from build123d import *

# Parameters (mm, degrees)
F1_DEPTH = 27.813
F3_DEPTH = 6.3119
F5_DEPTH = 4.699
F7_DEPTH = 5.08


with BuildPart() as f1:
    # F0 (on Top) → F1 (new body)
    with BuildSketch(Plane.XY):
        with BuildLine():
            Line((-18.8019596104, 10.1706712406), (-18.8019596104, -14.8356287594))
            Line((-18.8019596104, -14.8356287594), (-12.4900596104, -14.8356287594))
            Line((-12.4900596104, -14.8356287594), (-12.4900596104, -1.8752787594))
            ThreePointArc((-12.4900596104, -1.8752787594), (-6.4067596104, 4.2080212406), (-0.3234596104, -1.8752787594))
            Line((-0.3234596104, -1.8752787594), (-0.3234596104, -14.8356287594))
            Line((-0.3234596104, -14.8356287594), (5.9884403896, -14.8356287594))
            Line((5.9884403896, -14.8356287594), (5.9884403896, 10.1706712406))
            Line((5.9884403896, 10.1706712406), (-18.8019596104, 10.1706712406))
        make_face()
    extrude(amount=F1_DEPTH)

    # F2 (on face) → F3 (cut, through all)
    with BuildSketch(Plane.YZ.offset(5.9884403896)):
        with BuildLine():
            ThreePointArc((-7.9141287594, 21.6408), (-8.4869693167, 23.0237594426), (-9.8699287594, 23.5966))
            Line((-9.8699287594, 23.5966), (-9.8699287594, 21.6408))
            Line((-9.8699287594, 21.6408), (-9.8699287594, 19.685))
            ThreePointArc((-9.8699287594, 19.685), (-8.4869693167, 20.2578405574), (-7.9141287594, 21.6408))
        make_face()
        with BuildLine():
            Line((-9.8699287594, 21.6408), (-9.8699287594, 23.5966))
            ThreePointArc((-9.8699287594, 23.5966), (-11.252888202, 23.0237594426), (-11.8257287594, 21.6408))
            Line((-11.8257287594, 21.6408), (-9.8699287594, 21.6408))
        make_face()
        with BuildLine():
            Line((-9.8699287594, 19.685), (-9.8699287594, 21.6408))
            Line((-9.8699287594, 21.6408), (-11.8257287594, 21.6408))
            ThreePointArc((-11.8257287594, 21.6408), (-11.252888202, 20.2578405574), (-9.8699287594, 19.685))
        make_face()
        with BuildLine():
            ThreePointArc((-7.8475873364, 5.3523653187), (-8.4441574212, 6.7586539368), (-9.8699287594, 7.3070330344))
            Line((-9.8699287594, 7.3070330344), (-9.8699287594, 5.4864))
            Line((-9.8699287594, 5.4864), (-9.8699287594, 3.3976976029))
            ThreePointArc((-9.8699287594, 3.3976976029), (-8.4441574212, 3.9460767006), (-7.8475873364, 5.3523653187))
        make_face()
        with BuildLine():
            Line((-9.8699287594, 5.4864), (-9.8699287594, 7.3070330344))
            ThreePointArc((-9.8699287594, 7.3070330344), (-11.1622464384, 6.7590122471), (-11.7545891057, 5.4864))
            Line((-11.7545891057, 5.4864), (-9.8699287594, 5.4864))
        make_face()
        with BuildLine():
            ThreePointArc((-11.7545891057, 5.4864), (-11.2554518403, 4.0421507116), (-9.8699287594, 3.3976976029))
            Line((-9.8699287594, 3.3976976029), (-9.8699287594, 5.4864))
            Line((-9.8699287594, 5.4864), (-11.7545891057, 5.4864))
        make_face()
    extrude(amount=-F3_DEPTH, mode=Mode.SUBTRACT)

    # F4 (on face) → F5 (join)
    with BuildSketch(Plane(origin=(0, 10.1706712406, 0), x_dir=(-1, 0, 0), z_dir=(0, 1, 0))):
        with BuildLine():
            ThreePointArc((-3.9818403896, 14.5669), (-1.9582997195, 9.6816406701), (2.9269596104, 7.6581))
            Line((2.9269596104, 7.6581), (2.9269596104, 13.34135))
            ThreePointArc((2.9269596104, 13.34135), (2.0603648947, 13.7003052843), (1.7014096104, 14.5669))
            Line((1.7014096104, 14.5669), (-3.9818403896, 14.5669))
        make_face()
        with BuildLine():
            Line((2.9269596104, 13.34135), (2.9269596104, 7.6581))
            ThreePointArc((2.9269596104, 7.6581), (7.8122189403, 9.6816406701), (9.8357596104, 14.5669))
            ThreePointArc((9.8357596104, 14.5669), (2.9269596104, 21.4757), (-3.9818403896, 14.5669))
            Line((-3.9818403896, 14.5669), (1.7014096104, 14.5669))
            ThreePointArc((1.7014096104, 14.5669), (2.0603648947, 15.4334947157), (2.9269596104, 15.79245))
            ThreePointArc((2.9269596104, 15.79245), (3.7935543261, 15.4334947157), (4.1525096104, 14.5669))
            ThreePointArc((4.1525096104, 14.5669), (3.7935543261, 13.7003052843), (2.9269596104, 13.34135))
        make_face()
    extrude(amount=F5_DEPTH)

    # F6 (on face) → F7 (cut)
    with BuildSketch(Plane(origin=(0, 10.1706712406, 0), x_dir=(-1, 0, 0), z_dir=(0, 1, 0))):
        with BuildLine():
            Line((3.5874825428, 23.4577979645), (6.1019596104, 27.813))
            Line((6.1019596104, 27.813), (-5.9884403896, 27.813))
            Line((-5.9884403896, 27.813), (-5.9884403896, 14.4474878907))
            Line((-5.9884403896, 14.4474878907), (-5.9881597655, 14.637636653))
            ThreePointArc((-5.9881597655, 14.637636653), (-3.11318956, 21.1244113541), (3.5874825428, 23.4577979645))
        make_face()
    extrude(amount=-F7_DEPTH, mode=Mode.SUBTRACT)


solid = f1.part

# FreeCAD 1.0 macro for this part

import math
import FreeCAD as App
import Part
import Sketcher
Q = App.Units.Quantity

doc = App.newDocument("Part")
body = doc.addObject("PartDesign::Body", "Body")

# Sketch on XY plane
sketch1 = body.newObject("Sketcher::SketchObject", "Sketch")
sketch1.AttachmentSupport = (doc.getObject("XY_Plane"), [""])
sketch1.MapMode = "FlatFace"
sketch1.addGeometry([
    Part.LineSegment(App.Vector(-18.80196, 10.170671, 0), App.Vector(-18.80196, -14.835629, 0)),  # 0
    Part.LineSegment(App.Vector(-18.80196, -14.835629, 0), App.Vector(-12.49006, -14.835629, 0)),  # 1
    Part.LineSegment(App.Vector(-12.49006, -14.835629, 0), App.Vector(-12.49006, -1.875279, 0)),  # 2
    Part.ArcOfCircle(Part.Circle(App.Vector(-6.40676, -1.875279, 0), App.Vector(0, 0, 1), 6.0833), math.radians(0), math.radians(180)),  # 3
    Part.LineSegment(App.Vector(-0.32346, -1.875279, 0), App.Vector(-0.32346, -14.835629, 0)),  # 4
    Part.LineSegment(App.Vector(-0.32346, -14.835629, 0), App.Vector(5.98844, -14.835629, 0)),  # 5
    Part.LineSegment(App.Vector(5.98844, -14.835629, 0), App.Vector(5.98844, 10.170671, 0)),  # 6
    Part.LineSegment(App.Vector(5.98844, 10.170671, 0), App.Vector(-18.80196, 10.170671, 0)),  # 7
], False)
sketch1.addConstraint([
    Sketcher.Constraint("Coincident", 0, 2, 1, 1),
    Sketcher.Constraint("Coincident", 1, 2, 2, 1),
    Sketcher.Constraint("Tangent", 2, 2, 3, 2),
    Sketcher.Constraint("Tangent", 3, 1, 4, 1),
    Sketcher.Constraint("Coincident", 4, 2, 5, 1),
    Sketcher.Constraint("Coincident", 5, 2, 6, 1),
    Sketcher.Constraint("Coincident", 6, 2, 7, 1),
    Sketcher.Constraint("Coincident", 7, 2, 0, 1),
    Sketcher.Constraint("Vertical", 0),
    Sketcher.Constraint("Horizontal", 1),
    Sketcher.Constraint("Vertical", 2),
    Sketcher.Constraint("Vertical", 4),
    Sketcher.Constraint("Horizontal", 5),
    Sketcher.Constraint("Vertical", 6),
    Sketcher.Constraint("Horizontal", 7),
    Sketcher.Constraint("Horizontal", 1, 2, 4, 2),
    Sketcher.Constraint("Equal", 1, 5),
    Sketcher.Constraint("Radius", 3, Q("0.2395 in")),
    Sketcher.Constraint("DistanceX", 7, 2, 7, 1, Q("0.976 in")),
    Sketcher.Constraint("DistanceY", 0, 2, 0, 1, Q("0.9845 in")),
    Sketcher.Constraint("DistanceY", 2, 1, 2, 2, Q("12.96035 mm")),
    Sketcher.Constraint("DistanceX", 3, 3, -1, 1, Q("6.40676 mm")),
    Sketcher.Constraint("DistanceY", 3, 3, -1, 1, Q("1.875279 mm")),
])
pad1 = body.newObject("PartDesign::Pad", "Pad")
pad1.Profile = sketch1
pad1.Length = Q("1.095 in")

# Sketch on YZ plane
sketch2 = body.newObject("Sketcher::SketchObject", "Sketch001")
sketch2.AttachmentSupport = (doc.getObject("YZ_Plane"), [""])
sketch2.MapMode = "FlatFace"
sketch2.AttachmentOffset = App.Placement(App.Vector(0, 0, 5.98844), App.Rotation())
sketch2.addGeometry([
    Part.ArcOfCircle(Part.Circle(App.Vector(-9.869929, 21.6408, 0), App.Vector(0, 0, 1), 1.9558), math.radians(0), math.radians(90)),  # 0
    Part.ArcOfCircle(Part.Circle(App.Vector(-9.869929, 21.6408, 0), App.Vector(0, 0, 1), 1.9558), math.radians(90), math.radians(180)),  # 1
    Part.ArcOfCircle(Part.Circle(App.Vector(-9.869929, 21.6408, 0), App.Vector(0, 0, 1), 1.9558), math.radians(180), math.radians(270)),  # 2
    Part.ArcOfCircle(Part.Circle(App.Vector(-9.869929, 21.6408, 0), App.Vector(0, 0, 1), 1.9558), math.radians(-90), math.radians(0)),  # 3
    Part.ArcOfCircle(Part.Circle(App.Vector(-9.803387, 5.352365, 0), App.Vector(0, 0, 1), 1.9558), math.radians(0), math.radians(91.949728)),  # 4
    Part.ArcOfCircle(Part.Circle(App.Vector(-9.803387, 5.352365, 0), App.Vector(0, 0, 1), 1.9558), math.radians(91.949728), math.radians(176.070332)),  # 5
    Part.ArcOfCircle(Part.Circle(App.Vector(-9.803387, 5.352365, 0), App.Vector(0, 0, 1), 1.9558), math.radians(176.070332), math.radians(268.050272)),  # 6
    Part.ArcOfCircle(Part.Circle(App.Vector(-9.803387, 5.352365, 0), App.Vector(0, 0, 1), 1.9558), math.radians(-91.949728), math.radians(0)),  # 7
], False)
sketch2.addConstraint([
    Sketcher.Constraint("Tangent", 0, 2, 1, 1),
    Sketcher.Constraint("Tangent", 1, 2, 2, 1),
    Sketcher.Constraint("Tangent", 2, 2, 3, 1),
    Sketcher.Constraint("Tangent", 3, 2, 0, 1),
    Sketcher.Constraint("Tangent", 4, 2, 5, 1),
    Sketcher.Constraint("Tangent", 5, 2, 6, 1),
    Sketcher.Constraint("Tangent", 6, 2, 7, 1),
    Sketcher.Constraint("Tangent", 7, 2, 4, 1),
    Sketcher.Constraint("Equal", 0, 1),
    Sketcher.Constraint("Equal", 3, 4),
    Sketcher.Constraint("Equal", 4, 5),
    Sketcher.Constraint("Horizontal", 3, 3, 1, 2),
    Sketcher.Constraint("Horizontal", 1, 2, 3, 2),
    Sketcher.Constraint("Horizontal", 6, 3, 7, 2),
    Sketcher.Constraint("Vertical", 3, 3, 0, 2),
    Sketcher.Constraint("Vertical", 0, 2, 2, 2),
    Sketcher.Constraint("Vertical", 2, 2, 4, 2),
    Sketcher.Constraint("Vertical", 4, 2, 6, 2),
    Sketcher.Constraint("Radius", 0, Q("0.077 in")),
    Sketcher.Constraint("DistanceY", -1, 1, 0, 3, Q("0.852 in")),
    Sketcher.Constraint("DistanceY", -1, 1, 5, 2, Q("0.216 in")),
    Sketcher.Constraint("DistanceX", 5, 2, 5, 3, Q("1.951202 mm")),
    Sketcher.Constraint("DistanceX", 0, 3, -1, 1, Q("9.869929 mm")),
    Sketcher.Constraint("DistanceX", 5, 2, -1, 1, Q("11.754589 mm")),
])
pocket1 = body.newObject("PartDesign::Pocket", "Pocket")
pocket1.Profile = sketch2
pocket1.Length = Q("0.2485 in")

# Sketch on XZ plane
sketch3 = body.newObject("Sketcher::SketchObject", "Sketch002")
sketch3.AttachmentSupport = (doc.getObject("XZ_Plane"), [""])
sketch3.MapMode = "FlatFace"
sketch3.AttachmentOffset = App.Placement(App.Vector(0, 0, -10.170671), App.Rotation())
sketch3.addGeometry([
    Part.ArcOfCircle(Part.Circle(App.Vector(-2.92696, 14.5669, 0), App.Vector(0, 0, 1), 6.9088), math.radians(-90), math.radians(0)),  # 0
    Part.ArcOfCircle(Part.Circle(App.Vector(-2.92696, 14.5669, 0), App.Vector(0, 0, 1), 6.9088), math.radians(180), math.radians(270)),  # 1
    Part.ArcOfCircle(Part.Circle(App.Vector(-2.92696, 14.5669, 0), App.Vector(0, 0, 1), 6.9088), math.radians(0), math.radians(180)),  # 2
    Part.ArcOfCircle(Part.Circle(App.Vector(-2.92696, 14.5669, 0), App.Vector(0, 0, 1), 1.22555), math.radians(-90), math.radians(0)),  # 3
    Part.ArcOfCircle(Part.Circle(App.Vector(-2.92696, 14.5669, 0), App.Vector(0, 0, 1), 1.22555), math.radians(0), math.radians(90)),  # 4
    Part.ArcOfCircle(Part.Circle(App.Vector(-2.92696, 14.5669, 0), App.Vector(0, 0, 1), 1.22555), math.radians(90), math.radians(180)),  # 5
    Part.ArcOfCircle(Part.Circle(App.Vector(-2.92696, 14.5669, 0), App.Vector(0, 0, 1), 1.22555), math.radians(180), math.radians(270)),  # 6
], False)
sketch3.addConstraint([
    Sketcher.Constraint("Tangent", 0, 1, 1, 2),
    Sketcher.Constraint("Tangent", 1, 1, 2, 2),
    Sketcher.Constraint("Tangent", 2, 1, 0, 2),
    Sketcher.Constraint("Tangent", 3, 2, 4, 1),
    Sketcher.Constraint("Tangent", 4, 2, 5, 1),
    Sketcher.Constraint("Tangent", 5, 2, 6, 1),
    Sketcher.Constraint("Tangent", 6, 2, 3, 1),
    Sketcher.Constraint("Coincident", 3, 3, 0, 3),
    Sketcher.Constraint("Equal", 3, 4),
    Sketcher.Constraint("Horizontal", 6, 3, 1, 1),
    Sketcher.Constraint("Horizontal", 1, 1, 2, 1),
    Sketcher.Constraint("Horizontal", 2, 1, 3, 2),
    Sketcher.Constraint("Horizontal", 3, 2, 5, 2),
    Sketcher.Constraint("Vertical", 6, 3, 0, 1),
    Sketcher.Constraint("Vertical", 0, 1, 4, 2),
    Sketcher.Constraint("Vertical", 4, 2, 6, 2),
    Sketcher.Constraint("Radius", 0, Q("0.272 in")),
    Sketcher.Constraint("Radius", 3, Q("1.22555 mm")),
    Sketcher.Constraint("DistanceY", -1, 1, 0, 3, Q("0.5735 in")),
    Sketcher.Constraint("DistanceX", 0, 3, -1, 1, Q("2.92696 mm")),
])
pad2 = body.newObject("PartDesign::Pad", "Pad001")
pad2.Profile = sketch3
pad2.Length = Q("0.185 in")
pad2.Reversed = True

# Sketch on XZ plane
sketch4 = body.newObject("Sketcher::SketchObject", "Sketch003")
sketch4.AttachmentSupport = (doc.getObject("XZ_Plane"), [""])
sketch4.MapMode = "FlatFace"
sketch4.AttachmentOffset = App.Placement(App.Vector(0, 0, -10.170671), App.Rotation())
sketch4.addGeometry([
    Part.LineSegment(App.Vector(-3.587483, 23.457798, 0), App.Vector(-6.10196, 27.813, 0)),  # 0
    Part.LineSegment(App.Vector(-6.10196, 27.813, 0), App.Vector(5.98844, 27.813, 0)),  # 1
    Part.LineSegment(App.Vector(5.98844, 27.813, 0), App.Vector(5.98844, 14.447488, 0)),  # 2
    Part.LineSegment(App.Vector(5.98844, 14.447488, 0), App.Vector(5.98816, 14.637637, 0)),  # 3
    Part.ArcOfCircle(Part.Circle(App.Vector(-2.92696, 14.5669, 0), App.Vector(0, 0, 1), 8.9154), math.radians(0.454601), math.radians(94.248815)),  # 4
], False)
sketch4.addConstraint([
    Sketcher.Constraint("Coincident", 0, 2, 1, 1),
    Sketcher.Constraint("Coincident", 1, 2, 2, 1),
    Sketcher.Constraint("Coincident", 2, 2, 3, 1),
    Sketcher.Constraint("Coincident", 3, 2, 4, 1),
    Sketcher.Constraint("Coincident", 4, 2, 0, 1),
    Sketcher.Constraint("Horizontal", 1),
    Sketcher.Constraint("Vertical", 2),
    Sketcher.Constraint("Angle", 0, Q("120 deg")),
    Sketcher.Constraint("Radius", 4, Q("0.351 in")),
    Sketcher.Constraint("DistanceX", 1, 1, 1, 2, Q("0.476 in")),
    Sketcher.Constraint("DistanceY", -1, 1, 0, 2, Q("1.095 in")),
    Sketcher.Constraint("DistanceX", 0, 2, 4, 3, Q("0.125 in")),
    Sketcher.Constraint("DistanceY", -1, 1, 4, 3, Q("0.5735 in")),
    Sketcher.Constraint("Distance", 3, Q("0.190149 mm")),
    Sketcher.Constraint("DistanceY", 2, 2, 2, 1, Q("13.365512 mm")),
    Sketcher.Constraint("DistanceX", 4, 3, -1, 1, Q("2.92696 mm")),
])
pocket2 = body.newObject("PartDesign::Pocket", "Pocket001")
pocket2.Profile = sketch4
pocket2.Length = Q("0.2 in")
pocket2.Reversed = True

doc.recompute()
